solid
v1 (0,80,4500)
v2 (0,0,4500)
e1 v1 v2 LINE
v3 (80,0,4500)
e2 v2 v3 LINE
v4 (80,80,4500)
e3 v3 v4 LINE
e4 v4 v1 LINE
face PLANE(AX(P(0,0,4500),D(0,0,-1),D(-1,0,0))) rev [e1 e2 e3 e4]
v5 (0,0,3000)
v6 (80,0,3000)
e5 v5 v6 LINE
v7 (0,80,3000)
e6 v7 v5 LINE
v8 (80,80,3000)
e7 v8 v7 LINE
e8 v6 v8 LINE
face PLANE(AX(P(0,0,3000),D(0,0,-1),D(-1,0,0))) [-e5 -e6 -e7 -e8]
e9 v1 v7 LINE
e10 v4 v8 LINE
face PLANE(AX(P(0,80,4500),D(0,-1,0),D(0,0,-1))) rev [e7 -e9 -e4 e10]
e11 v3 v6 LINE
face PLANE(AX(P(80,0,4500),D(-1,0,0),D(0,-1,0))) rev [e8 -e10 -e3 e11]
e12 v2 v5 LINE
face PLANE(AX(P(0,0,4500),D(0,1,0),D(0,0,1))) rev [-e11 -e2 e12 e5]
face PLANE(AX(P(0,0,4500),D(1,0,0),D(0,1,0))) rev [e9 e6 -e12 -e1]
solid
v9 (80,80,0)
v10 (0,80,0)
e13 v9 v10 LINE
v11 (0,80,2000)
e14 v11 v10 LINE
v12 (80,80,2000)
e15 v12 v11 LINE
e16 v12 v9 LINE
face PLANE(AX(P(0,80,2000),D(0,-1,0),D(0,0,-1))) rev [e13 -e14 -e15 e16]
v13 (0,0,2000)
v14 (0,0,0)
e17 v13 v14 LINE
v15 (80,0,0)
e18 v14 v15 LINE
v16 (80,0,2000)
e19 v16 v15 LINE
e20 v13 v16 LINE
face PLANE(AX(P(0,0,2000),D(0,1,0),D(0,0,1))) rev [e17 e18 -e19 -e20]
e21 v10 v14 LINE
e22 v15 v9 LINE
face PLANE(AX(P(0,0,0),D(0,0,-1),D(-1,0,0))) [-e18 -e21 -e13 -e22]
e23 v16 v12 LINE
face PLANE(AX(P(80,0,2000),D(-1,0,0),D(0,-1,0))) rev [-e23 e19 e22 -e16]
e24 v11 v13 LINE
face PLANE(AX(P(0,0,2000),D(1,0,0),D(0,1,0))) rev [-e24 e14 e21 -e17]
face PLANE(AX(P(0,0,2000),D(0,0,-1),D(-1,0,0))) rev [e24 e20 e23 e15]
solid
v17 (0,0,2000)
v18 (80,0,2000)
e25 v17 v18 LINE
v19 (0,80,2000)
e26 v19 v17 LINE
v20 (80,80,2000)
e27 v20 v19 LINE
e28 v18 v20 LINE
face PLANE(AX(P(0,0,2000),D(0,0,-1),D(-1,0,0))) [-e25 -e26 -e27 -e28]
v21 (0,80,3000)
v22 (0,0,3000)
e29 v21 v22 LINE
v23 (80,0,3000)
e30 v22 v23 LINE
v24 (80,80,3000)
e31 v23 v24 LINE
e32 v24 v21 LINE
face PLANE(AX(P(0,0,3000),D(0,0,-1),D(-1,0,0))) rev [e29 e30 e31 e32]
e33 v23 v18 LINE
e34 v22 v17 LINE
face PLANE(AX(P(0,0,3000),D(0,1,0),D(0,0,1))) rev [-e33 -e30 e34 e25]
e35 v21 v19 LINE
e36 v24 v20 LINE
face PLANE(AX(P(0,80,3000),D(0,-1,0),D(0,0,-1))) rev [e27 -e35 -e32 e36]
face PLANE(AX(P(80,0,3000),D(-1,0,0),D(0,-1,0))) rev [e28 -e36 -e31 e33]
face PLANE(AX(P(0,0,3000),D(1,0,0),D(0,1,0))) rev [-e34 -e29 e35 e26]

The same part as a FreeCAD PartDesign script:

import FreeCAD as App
import Part
import Sketcher


def add_polygon(sketch, points):
    """Adds a closed chain of lines whose ends are joined by coincident constraints."""
    first, n = sketch.GeometryCount, len(points)
    for a, b in zip(points, points[1:] + points[:1]):
        sketch.addGeometry(Part.LineSegment(App.Vector(*a, 0), App.Vector(*b, 0)), False)
    for i in range(n):
        sketch.addConstraint(Sketcher.Constraint("Coincident", first + i, 2, first + (i + 1) % n, 1))

doc = App.newDocument("Part")
body = doc.addObject("PartDesign::Body", "Body")

# Sketch on XY plane
sketch1 = doc.addObject("Sketcher::SketchObject", "Sketch")
body.addObject(sketch1)
sketch1.AttachmentSupport = (doc.XY_Plane, [""])
sketch1.MapMode = "FlatFace"
add_polygon(sketch1, [(0, 80), (0, 0), (80, 0), (80, 80)])  # lines 0-3
sketch1.addConstraint(Sketcher.Constraint("Vertical", 0))
sketch1.addConstraint(Sketcher.Constraint("Horizontal", 1))
sketch1.addConstraint(Sketcher.Constraint("Vertical", 2))
sketch1.addConstraint(Sketcher.Constraint("Horizontal", 3))
sketch1.addConstraint(Sketcher.Constraint("Coincident", 0, 2, -1, 1))
sketch1.addConstraint(Sketcher.Constraint("Equal", 3, 0))
sketch1.addConstraint(Sketcher.Constraint("DistanceX", 1, 1, 1, 2, 80.0))
pad1 = doc.addObject("PartDesign::Pad", "Pad")
body.addObject(pad1)
pad1.Profile = sketch1
pad1.Length = 2000
body2 = doc.addObject("PartDesign::Body", "Body001")

# Sketch on XY plane
sketch2 = doc.addObject("Sketcher::SketchObject", "Sketch001")
body2.addObject(sketch2)
sketch2.AttachmentSupport = (doc.getObject("XY_Plane001"), [""])
sketch2.MapMode = "FlatFace"
sketch2.AttachmentOffset = App.Placement(App.Vector(0, 0, 2000), App.Rotation())
add_polygon(sketch2, [(0, 80), (0, 0), (80, 0), (80, 80)])  # lines 0-3
sketch2.addConstraint(Sketcher.Constraint("Vertical", 0))
sketch2.addConstraint(Sketcher.Constraint("Horizontal", 1))
sketch2.addConstraint(Sketcher.Constraint("Vertical", 2))
sketch2.addConstraint(Sketcher.Constraint("Horizontal", 3))
sketch2.addConstraint(Sketcher.Constraint("Coincident", 0, 2, -1, 1))
sketch2.addConstraint(Sketcher.Constraint("Equal", 3, 0))
sketch2.addConstraint(Sketcher.Constraint("DistanceX", 1, 1, 1, 2, 80.0))
pad2 = doc.addObject("PartDesign::Pad", "Pad001")
body2.addObject(pad2)
pad2.Profile = sketch2
pad2.Length = 1000
body3 = doc.addObject("PartDesign::Body", "Body002")

# Sketch on XY plane
sketch3 = doc.addObject("Sketcher::SketchObject", "Sketch002")
body3.addObject(sketch3)
sketch3.AttachmentSupport = (doc.getObject("XY_Plane002"), [""])
sketch3.MapMode = "FlatFace"
sketch3.AttachmentOffset = App.Placement(App.Vector(0, 0, 3000), App.Rotation())
add_polygon(sketch3, [(0, 80), (0, 0), (80, 0), (80, 80)])  # lines 0-3
sketch3.addConstraint(Sketcher.Constraint("Vertical", 0))
sketch3.addConstraint(Sketcher.Constraint("Horizontal", 1))
sketch3.addConstraint(Sketcher.Constraint("Vertical", 2))
sketch3.addConstraint(Sketcher.Constraint("Horizontal", 3))
sketch3.addConstraint(Sketcher.Constraint("Coincident", 0, 2, -1, 1))
sketch3.addConstraint(Sketcher.Constraint("Equal", 3, 0))
sketch3.addConstraint(Sketcher.Constraint("DistanceX", 1, 1, 1, 2, 80.0))
pad3 = doc.addObject("PartDesign::Pad", "Pad002")
body3.addObject(pad3)
pad3.Profile = sketch3
pad3.Length = 1500

doc.recompute()
